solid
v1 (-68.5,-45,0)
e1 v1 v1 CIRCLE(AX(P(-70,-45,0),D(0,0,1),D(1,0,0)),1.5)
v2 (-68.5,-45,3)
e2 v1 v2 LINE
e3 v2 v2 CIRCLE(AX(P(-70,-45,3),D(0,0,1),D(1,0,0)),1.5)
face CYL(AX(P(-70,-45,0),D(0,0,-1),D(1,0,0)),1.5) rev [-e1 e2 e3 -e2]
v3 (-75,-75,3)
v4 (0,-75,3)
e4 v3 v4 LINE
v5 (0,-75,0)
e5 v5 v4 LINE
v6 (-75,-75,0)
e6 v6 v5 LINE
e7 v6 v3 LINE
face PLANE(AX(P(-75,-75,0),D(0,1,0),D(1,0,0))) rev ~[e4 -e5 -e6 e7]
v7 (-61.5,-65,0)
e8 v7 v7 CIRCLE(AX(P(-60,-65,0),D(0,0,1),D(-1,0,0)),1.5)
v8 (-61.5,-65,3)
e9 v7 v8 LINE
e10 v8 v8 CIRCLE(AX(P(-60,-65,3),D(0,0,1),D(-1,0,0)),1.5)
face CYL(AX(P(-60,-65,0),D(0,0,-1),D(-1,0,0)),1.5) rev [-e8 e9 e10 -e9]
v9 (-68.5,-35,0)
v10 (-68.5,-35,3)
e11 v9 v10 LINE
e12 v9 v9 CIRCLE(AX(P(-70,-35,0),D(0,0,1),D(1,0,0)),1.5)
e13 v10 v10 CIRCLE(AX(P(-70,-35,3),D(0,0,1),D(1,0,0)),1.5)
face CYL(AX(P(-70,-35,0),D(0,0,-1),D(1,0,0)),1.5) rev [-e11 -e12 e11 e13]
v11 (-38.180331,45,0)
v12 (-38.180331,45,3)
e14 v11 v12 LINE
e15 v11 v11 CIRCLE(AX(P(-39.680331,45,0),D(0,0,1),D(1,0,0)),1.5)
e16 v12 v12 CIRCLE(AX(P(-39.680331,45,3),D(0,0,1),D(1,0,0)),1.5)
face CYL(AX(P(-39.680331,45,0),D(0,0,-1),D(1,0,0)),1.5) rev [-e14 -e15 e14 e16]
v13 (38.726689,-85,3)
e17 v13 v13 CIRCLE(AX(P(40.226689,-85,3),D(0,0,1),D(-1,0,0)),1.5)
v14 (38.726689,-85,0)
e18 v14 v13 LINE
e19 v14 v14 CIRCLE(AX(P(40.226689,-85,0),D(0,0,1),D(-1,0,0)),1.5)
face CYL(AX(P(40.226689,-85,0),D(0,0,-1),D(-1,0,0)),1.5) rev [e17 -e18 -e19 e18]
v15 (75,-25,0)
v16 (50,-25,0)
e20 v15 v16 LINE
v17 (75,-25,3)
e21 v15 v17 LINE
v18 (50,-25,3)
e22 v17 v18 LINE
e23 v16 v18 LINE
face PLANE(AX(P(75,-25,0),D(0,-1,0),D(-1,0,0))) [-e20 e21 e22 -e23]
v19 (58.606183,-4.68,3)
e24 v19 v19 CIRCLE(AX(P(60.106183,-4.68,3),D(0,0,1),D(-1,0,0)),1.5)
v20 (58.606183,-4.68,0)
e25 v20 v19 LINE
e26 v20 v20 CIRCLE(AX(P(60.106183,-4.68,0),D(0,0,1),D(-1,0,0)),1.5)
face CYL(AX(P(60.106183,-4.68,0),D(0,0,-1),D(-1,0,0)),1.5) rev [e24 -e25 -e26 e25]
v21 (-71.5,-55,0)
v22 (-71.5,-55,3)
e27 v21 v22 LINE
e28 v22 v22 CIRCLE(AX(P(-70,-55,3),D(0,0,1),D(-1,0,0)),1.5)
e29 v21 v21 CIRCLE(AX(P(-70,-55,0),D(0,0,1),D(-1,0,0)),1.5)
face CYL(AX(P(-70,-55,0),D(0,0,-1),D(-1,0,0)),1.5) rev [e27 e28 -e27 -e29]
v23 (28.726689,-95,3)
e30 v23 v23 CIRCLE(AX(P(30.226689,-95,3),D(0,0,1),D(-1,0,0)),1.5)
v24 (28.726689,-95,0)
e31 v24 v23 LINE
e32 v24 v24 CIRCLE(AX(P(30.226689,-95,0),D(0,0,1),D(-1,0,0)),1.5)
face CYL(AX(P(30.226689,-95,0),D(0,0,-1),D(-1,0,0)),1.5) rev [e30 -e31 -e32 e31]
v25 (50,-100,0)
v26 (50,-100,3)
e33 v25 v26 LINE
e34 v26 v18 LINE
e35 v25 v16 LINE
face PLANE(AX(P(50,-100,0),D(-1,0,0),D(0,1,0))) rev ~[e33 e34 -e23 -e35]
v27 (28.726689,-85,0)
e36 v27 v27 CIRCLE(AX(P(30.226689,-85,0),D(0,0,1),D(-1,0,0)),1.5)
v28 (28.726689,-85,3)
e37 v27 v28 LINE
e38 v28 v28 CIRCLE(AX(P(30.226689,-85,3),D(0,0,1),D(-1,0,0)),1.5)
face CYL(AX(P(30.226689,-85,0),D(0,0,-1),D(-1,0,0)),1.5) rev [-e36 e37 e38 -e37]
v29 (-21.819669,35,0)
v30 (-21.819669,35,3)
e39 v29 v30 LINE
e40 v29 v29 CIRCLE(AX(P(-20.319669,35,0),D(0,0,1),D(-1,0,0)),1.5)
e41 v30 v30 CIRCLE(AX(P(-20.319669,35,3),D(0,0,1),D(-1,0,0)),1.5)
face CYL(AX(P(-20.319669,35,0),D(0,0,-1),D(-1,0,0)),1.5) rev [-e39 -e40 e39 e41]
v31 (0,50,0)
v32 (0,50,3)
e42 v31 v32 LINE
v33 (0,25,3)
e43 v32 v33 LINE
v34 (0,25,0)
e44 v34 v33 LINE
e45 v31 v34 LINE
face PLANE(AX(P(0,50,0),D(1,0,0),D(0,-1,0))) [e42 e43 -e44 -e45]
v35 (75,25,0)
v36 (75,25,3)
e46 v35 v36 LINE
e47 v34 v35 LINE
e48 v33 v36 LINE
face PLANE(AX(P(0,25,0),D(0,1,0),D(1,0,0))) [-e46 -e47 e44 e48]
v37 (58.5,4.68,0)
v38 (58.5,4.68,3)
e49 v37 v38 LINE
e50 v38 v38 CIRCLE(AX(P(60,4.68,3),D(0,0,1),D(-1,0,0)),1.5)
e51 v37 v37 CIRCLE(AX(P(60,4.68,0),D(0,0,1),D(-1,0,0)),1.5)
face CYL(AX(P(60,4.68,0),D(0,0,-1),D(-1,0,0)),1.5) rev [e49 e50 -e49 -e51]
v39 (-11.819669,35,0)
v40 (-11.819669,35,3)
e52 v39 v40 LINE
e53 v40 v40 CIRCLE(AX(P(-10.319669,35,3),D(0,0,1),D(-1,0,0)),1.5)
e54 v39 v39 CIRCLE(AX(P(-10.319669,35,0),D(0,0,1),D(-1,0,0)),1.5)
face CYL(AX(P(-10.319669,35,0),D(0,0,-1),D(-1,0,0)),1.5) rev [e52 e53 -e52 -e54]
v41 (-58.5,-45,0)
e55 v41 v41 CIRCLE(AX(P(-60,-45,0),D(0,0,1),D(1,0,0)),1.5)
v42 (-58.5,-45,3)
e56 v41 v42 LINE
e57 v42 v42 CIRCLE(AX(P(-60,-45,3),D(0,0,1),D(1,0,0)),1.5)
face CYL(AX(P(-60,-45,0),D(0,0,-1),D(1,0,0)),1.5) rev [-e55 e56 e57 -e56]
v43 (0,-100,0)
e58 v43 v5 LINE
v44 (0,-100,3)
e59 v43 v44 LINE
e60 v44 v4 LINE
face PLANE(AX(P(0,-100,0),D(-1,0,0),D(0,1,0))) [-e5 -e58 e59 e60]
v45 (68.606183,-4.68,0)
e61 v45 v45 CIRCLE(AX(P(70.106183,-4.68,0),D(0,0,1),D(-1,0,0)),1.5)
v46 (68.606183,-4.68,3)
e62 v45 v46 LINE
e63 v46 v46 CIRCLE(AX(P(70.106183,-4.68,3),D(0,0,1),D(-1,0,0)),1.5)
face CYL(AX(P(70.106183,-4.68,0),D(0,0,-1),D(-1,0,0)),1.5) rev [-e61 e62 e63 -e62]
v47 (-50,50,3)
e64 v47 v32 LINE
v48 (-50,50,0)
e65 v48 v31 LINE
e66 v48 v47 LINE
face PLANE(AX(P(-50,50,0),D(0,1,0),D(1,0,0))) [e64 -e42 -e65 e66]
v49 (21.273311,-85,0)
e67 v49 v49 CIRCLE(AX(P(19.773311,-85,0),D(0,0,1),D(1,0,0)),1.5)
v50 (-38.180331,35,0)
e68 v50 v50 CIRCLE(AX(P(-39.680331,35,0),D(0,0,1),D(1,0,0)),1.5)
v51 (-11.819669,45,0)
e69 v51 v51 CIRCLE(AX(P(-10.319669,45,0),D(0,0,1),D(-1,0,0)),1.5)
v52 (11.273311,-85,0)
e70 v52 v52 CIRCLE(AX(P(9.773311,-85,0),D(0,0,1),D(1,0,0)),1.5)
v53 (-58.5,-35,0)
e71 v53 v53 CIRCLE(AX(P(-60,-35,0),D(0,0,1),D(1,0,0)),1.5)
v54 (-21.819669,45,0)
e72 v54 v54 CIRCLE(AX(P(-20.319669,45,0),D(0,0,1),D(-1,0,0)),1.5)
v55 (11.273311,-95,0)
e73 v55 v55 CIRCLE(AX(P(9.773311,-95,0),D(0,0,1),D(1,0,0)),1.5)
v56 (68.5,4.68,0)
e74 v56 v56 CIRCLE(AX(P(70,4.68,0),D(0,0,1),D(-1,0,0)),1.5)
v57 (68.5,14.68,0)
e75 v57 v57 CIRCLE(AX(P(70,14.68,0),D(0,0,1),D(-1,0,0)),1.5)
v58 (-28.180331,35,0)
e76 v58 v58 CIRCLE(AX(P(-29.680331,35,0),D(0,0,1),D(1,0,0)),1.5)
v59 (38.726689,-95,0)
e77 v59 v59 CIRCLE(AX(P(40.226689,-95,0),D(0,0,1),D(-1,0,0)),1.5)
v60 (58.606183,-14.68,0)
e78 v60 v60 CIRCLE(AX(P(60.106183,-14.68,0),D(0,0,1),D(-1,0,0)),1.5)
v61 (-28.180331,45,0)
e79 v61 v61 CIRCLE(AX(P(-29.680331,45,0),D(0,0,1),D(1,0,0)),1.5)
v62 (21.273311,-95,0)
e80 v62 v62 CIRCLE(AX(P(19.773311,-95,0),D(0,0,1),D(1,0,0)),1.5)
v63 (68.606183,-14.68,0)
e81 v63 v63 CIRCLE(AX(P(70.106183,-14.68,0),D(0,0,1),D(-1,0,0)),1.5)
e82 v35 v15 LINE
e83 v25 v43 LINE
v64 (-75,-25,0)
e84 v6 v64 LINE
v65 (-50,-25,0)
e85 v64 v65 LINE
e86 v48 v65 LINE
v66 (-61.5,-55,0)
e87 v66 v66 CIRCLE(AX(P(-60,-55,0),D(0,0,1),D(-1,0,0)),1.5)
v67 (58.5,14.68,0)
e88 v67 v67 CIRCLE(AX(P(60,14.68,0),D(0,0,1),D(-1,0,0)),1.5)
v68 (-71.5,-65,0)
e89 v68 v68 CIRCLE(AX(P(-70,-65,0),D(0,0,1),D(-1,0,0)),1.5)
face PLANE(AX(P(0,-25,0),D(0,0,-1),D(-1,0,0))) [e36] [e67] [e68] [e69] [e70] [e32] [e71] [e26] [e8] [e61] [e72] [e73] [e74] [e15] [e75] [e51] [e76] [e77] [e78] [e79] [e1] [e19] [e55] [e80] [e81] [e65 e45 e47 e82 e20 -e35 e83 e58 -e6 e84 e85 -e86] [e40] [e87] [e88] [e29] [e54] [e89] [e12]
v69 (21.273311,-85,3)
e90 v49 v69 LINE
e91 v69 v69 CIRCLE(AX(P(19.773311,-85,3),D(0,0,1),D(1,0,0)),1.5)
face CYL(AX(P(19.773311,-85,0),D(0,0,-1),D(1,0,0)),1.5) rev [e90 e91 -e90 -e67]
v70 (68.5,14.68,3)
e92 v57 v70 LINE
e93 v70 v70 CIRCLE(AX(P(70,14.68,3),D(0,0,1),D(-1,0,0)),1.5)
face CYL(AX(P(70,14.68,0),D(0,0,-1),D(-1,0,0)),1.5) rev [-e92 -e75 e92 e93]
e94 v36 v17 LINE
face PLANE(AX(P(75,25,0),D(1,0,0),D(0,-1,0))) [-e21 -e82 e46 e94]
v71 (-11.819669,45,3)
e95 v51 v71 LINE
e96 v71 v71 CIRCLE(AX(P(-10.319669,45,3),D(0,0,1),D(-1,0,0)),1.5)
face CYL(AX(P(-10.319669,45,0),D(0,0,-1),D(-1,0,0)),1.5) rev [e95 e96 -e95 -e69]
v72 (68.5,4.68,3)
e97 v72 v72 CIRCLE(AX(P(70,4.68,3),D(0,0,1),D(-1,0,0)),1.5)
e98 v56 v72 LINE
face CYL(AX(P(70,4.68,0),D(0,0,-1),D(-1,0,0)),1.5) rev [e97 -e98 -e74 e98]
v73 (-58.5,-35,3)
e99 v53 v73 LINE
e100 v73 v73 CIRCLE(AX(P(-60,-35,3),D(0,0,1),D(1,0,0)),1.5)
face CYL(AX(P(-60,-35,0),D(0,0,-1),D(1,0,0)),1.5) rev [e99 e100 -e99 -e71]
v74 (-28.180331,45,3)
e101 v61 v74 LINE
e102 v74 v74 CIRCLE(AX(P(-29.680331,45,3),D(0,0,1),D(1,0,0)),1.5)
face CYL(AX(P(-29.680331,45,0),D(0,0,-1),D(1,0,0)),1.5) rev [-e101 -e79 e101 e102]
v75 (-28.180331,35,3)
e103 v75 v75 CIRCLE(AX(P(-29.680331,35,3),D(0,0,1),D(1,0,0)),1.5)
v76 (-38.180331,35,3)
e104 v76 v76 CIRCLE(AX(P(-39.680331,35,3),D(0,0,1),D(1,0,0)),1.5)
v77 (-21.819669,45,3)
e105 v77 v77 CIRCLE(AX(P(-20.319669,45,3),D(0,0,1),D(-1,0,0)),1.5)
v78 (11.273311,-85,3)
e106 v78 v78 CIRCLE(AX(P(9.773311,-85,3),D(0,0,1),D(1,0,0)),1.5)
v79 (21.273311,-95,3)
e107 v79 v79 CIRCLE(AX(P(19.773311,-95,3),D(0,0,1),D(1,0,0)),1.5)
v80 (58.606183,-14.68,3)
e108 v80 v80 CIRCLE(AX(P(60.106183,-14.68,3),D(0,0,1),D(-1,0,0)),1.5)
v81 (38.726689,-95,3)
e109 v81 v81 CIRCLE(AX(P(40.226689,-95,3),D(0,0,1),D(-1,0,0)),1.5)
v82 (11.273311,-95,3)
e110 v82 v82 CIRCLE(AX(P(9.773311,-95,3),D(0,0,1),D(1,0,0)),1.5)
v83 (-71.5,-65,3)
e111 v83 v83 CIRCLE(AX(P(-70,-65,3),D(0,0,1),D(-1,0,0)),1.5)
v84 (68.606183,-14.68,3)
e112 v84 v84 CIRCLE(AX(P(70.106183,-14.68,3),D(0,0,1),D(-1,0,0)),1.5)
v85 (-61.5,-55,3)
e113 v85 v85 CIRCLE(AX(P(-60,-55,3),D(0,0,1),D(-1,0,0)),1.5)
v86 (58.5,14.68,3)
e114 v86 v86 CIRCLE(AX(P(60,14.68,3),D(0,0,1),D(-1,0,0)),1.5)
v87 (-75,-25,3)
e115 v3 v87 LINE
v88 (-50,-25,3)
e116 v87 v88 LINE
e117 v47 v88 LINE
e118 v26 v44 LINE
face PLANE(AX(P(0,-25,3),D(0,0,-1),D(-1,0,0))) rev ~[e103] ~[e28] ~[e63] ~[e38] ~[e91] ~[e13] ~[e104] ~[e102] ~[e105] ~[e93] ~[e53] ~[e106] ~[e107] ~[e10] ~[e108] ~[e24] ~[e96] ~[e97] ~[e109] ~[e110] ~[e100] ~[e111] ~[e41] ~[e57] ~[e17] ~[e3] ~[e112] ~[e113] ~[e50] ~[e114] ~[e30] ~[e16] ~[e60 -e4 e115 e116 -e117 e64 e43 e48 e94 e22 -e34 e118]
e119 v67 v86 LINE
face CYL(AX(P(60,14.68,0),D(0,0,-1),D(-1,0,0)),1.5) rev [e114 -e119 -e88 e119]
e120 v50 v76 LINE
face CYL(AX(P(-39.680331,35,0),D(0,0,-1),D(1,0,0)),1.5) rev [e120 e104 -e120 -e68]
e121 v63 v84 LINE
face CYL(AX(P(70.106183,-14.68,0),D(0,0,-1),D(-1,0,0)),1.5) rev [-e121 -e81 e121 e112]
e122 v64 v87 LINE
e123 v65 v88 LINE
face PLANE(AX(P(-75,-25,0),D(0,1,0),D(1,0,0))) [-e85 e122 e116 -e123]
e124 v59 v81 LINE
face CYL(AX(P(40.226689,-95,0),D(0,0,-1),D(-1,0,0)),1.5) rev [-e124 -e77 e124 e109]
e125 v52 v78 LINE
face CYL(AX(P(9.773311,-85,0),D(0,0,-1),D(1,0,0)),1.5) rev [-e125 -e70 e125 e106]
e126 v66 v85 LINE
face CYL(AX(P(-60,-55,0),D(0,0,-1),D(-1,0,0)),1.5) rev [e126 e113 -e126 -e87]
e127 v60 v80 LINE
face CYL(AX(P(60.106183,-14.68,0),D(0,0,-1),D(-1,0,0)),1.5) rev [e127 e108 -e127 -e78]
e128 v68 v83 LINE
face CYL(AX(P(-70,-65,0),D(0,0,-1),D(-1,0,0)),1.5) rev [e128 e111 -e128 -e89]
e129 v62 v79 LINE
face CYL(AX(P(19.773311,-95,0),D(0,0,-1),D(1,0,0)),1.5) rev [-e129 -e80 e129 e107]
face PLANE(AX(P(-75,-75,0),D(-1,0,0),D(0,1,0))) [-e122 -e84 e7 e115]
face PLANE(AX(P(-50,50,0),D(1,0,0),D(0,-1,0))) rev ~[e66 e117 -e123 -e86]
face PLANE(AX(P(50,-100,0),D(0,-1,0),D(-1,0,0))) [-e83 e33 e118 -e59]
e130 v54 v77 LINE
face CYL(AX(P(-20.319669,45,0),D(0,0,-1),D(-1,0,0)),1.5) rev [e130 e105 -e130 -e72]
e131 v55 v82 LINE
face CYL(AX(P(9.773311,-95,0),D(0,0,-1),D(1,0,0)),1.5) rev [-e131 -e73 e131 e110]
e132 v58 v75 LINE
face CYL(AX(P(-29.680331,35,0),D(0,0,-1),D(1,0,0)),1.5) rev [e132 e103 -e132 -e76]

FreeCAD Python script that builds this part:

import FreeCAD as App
import Part
import Sketcher

V = App.Vector


def add_polygon(sketch, points):
    """Adds a closed chain of lines whose ends are joined by coincident constraints."""
    first, n = sketch.GeometryCount, len(points)
    for a, b in zip(points, points[1:] + points[:1]):
        sketch.addGeometry(Part.LineSegment(App.Vector(*a, 0), App.Vector(*b, 0)), False)
    for i in range(n):
        sketch.addConstraint(Sketcher.Constraint("Coincident", first + i, 2, first + (i + 1) % n, 1))

doc = App.newDocument("Part")
body = doc.addObject("PartDesign::Body", "Body")

sketch1 = doc.addObject("Sketcher::SketchObject", "Sketch")
body.addObject(sketch1)
sketch1.AttachmentSupport = (doc.XY_Plane, [""])
sketch1.MapMode = "FlatFace"
add_polygon(sketch1, [(50, -100), (50, -25), (75, -25), (75, 25), (0, 25), (0, 50), (-50, 50), (-50, -25), (-75, -25), (-75, -75), (0, -75), (0, -100)])
sketch1.addGeometry(Part.Circle(V(40.2, -95, 0), V(0, 0, 1), 1.5), False)
sketch1.addGeometry(Part.Circle(V(40.2, -85, 0), V(0, 0, 1), 1.5), False)
sketch1.addGeometry(Part.Circle(V(30.2, -95, 0), V(0, 0, 1), 1.5), False)
sketch1.addGeometry(Part.Circle(V(19.8, -95, 0), V(0, 0, 1), 1.5), False)
sketch1.addGeometry(Part.Circle(V(30.2, -85, 0), V(0, 0, 1), 1.5), False)
sketch1.addGeometry(Part.Circle(V(19.8, -85, 0), V(0, 0, 1), 1.5), False)
sketch1.addGeometry(Part.Circle(V(9.8, -95, 0), V(0, 0, 1), 1.5), False)
sketch1.addGeometry(Part.Circle(V(9.8, -85, 0), V(0, 0, 1), 1.5), False)
sketch1.addGeometry(Part.Circle(V(-60, -65, 0), V(0, 0, 1), 1.5), False)
sketch1.addGeometry(Part.Circle(V(-70, -65, 0), V(0, 0, 1), 1.5), False)
sketch1.addGeometry(Part.Circle(V(-60, -55, 0), V(0, 0, 1), 1.5), False)
sketch1.addGeometry(Part.Circle(V(-70, -55, 0), V(0, 0, 1), 1.5), False)
sketch1.addGeometry(Part.Circle(V(-60, -45, 0), V(0, 0, 1), 1.5), False)
sketch1.addGeometry(Part.Circle(V(-70, -45, 0), V(0, 0, 1), 1.5), False)
sketch1.addGeometry(Part.Circle(V(-60, -35, 0), V(0, 0, 1), 1.5), False)
sketch1.addGeometry(Part.Circle(V(-70, -35, 0), V(0, 0, 1), 1.5), False)
sketch1.addGeometry(Part.Circle(V(70.1, -14.7, 0), V(0, 0, 1), 1.5), False)
sketch1.addGeometry(Part.Circle(V(60.1, -14.7, 0), V(0, 0, 1), 1.5), False)
sketch1.addGeometry(Part.Circle(V(70.1, -4.7, 0), V(0, 0, 1), 1.5), False)
sketch1.addGeometry(Part.Circle(V(60.1, -4.7, 0), V(0, 0, 1), 1.5), False)
sketch1.addGeometry(Part.Circle(V(70, 4.7, 0), V(0, 0, 1), 1.5), False)
sketch1.addGeometry(Part.Circle(V(60, 4.7, 0), V(0, 0, 1), 1.5), False)
sketch1.addGeometry(Part.Circle(V(70, 14.7, 0), V(0, 0, 1), 1.5), False)
sketch1.addGeometry(Part.Circle(V(60, 14.7, 0), V(0, 0, 1), 1.5), False)
sketch1.addGeometry(Part.Circle(V(-10.3, 35, 0), V(0, 0, 1), 1.5), False)
sketch1.addGeometry(Part.Circle(V(-10.3, 45, 0), V(0, 0, 1), 1.5), False)
sketch1.addGeometry(Part.Circle(V(-20.3, 35, 0), V(0, 0, 1), 1.5), False)
sketch1.addGeometry(Part.Circle(V(-29.7, 35, 0), V(0, 0, 1), 1.5), False)
sketch1.addGeometry(Part.Circle(V(-20.3, 45, 0), V(0, 0, 1), 1.5), False)
sketch1.addGeometry(Part.Circle(V(-29.7, 45, 0), V(0, 0, 1), 1.5), False)
sketch1.addGeometry(Part.Circle(V(-39.7, 35, 0), V(0, 0, 1), 1.5), False)
sketch1.addGeometry(Part.Circle(V(-39.7, 45, 0), V(0, 0, 1), 1.5), False)
sketch1.addConstraint([
    Sketcher.Constraint("Vertical", 0),
    Sketcher.Constraint("Horizontal", 1),
    Sketcher.Constraint("Vertical", 2),
    Sketcher.Constraint("Horizontal", 3),
    Sketcher.Constraint("Vertical", 4),
    Sketcher.Constraint("Horizontal", 5),
    Sketcher.Constraint("Vertical", 6),
    Sketcher.Constraint("Horizontal", 7),
    Sketcher.Constraint("Vertical", 8),
    Sketcher.Constraint("Horizontal", 9),
    Sketcher.Constraint("Vertical", 10),
    Sketcher.Constraint("Horizontal", 11),
    Sketcher.Constraint("Equal", 12, 13),
    Sketcher.Constraint("Equal", 13, 14),
    Sketcher.Constraint("Equal", 14, 15),
    Sketcher.Constraint("Equal", 15, 16),
    Sketcher.Constraint("Equal", 16, 17),
    Sketcher.Constraint("Equal", 17, 18),
    Sketcher.Constraint("Equal", 18, 19),
    Sketcher.Constraint("Equal", 19, 20),
    Sketcher.Constraint("Equal", 20, 21),
    Sketcher.Constraint("Equal", 21, 22),
    Sketcher.Constraint("Equal", 22, 23),
    Sketcher.Constraint("Equal", 23, 24),
    Sketcher.Constraint("Equal", 24, 25),
    Sketcher.Constraint("Equal", 25, 26),
    Sketcher.Constraint("Equal", 26, 27),
    Sketcher.Constraint("Equal", 27, 28),
    Sketcher.Constraint("Equal", 28, 29),
    Sketcher.Constraint("Equal", 29, 30),
    Sketcher.Constraint("Equal", 30, 31),
    Sketcher.Constraint("Equal", 31, 32),
    Sketcher.Constraint("Equal", 32, 33),
    Sketcher.Constraint("Equal", 33, 34),
    Sketcher.Constraint("Equal", 34, 35),
    Sketcher.Constraint("Equal", 35, 36),
    Sketcher.Constraint("Equal", 36, 37),
    Sketcher.Constraint("Equal", 37, 38),
    Sketcher.Constraint("Equal", 38, 39),
    Sketcher.Constraint("Equal", 39, 40),
    Sketcher.Constraint("Equal", 40, 41),
    Sketcher.Constraint("Equal", 41, 42),
    Sketcher.Constraint("Equal", 42, 43),
    Sketcher.Constraint("Symmetric", 2, 2, 7, 2, -1, 1),
    Sketcher.Constraint("Symmetric", 0, 2, 6, 2, -2),
    Sketcher.Constraint("PointOnObject", 3, 2, -2),
    Sketcher.Constraint("PointOnObject", 9, 2, -2),
    Sketcher.Constraint("Horizontal", 12, 3, 14, 3),
    Sketcher.Constraint("Horizontal", 14, 3, 15, 3),
    Sketcher.Constraint("Horizontal", 13, 3, 16, 3),
    Sketcher.Constraint("Horizontal", 16, 3, 17, 3),
    Sketcher.Constraint("Horizontal", 15, 3, 18, 3),
    Sketcher.Constraint("Horizontal", 17, 3, 19, 3),
    Sketcher.Constraint("Horizontal", 20, 3, 21, 3),
    Sketcher.Constraint("Horizontal", 22, 3, 23, 3),
    Sketcher.Constraint("Horizontal", 24, 3, 25, 3),
    Sketcher.Constraint("Horizontal", 26, 3, 27, 3),
    Sketcher.Constraint("Horizontal", 28, 3, 29, 3),
    Sketcher.Constraint("Horizontal", 30, 3, 31, 3),
    Sketcher.Constraint("Horizontal", 32, 3, 33, 3),
    Sketcher.Constraint("Horizontal", 34, 3, 35, 3),
    Sketcher.Constraint("Horizontal", 36, 3, 38, 3),
    Sketcher.Constraint("Horizontal", 38, 3, 39, 3),
    Sketcher.Constraint("Horizontal", 37, 3, 40, 3),
    Sketcher.Constraint("Horizontal", 40, 3, 41, 3),
    Sketcher.Constraint("Horizontal", 39, 3, 42, 3),
    Sketcher.Constraint("Horizontal", 41, 3, 43, 3),
    Sketcher.Constraint("Vertical", 12, 3, 13, 3),
    Sketcher.Constraint("Vertical", 14, 3, 16, 3),
    Sketcher.Constraint("Vertical", 15, 3, 17, 3),
    Sketcher.Constraint("Vertical", 18, 3, 19, 3),
    Sketcher.Constraint("Vertical", 20, 3, 22, 3),
    Sketcher.Constraint("Vertical", 21, 3, 23, 3),
    Sketcher.Constraint("Vertical", 22, 3, 24, 3),
    Sketcher.Constraint("Vertical", 23, 3, 25, 3),
    Sketcher.Constraint("Vertical", 24, 3, 26, 3),
    Sketcher.Constraint("Vertical", 25, 3, 27, 3),
    Sketcher.Constraint("Vertical", 28, 3, 30, 3),
    Sketcher.Constraint("Vertical", 29, 3, 31, 3),
    Sketcher.Constraint("Vertical", 32, 3, 34, 3),
    Sketcher.Constraint("Vertical", 33, 3, 35, 3),
    Sketcher.Constraint("Vertical", 36, 3, 37, 3),
    Sketcher.Constraint("Vertical", 38, 3, 40, 3),
    Sketcher.Constraint("Vertical", 39, 3, 41, 3),
    Sketcher.Constraint("Vertical", 42, 3, 43, 3),
    Sketcher.Constraint("Equal", 9, 0),
    Sketcher.Constraint("Equal", 11, 2),
    Sketcher.Constraint("Equal", 7, 4),
    Sketcher.Constraint("Equal", 2, 8),
    Sketcher.Constraint("Diameter", 12, 3.0),
    Sketcher.Constraint("DistanceX", 1, 1, 1, 2, 25.0),
    Sketcher.Constraint("DistanceX", 3, 2, 3, 1, 75.0),
    Sketcher.Constraint("DistanceY", 12, 3, -1, 1, 95.0),
    Sketcher.Constraint("DistanceY", 13, 3, -1, 1, 85.0),
    Sketcher.Constraint("DistanceX", 20, 3, -1, 1, 60.0),
    Sketcher.Constraint("DistanceY", 20, 3, -1, 1, 65.0),
    Sketcher.Constraint("DistanceX", 21, 3, -1, 1, 70.0),
    Sketcher.Constraint("DistanceY", 22, 3, -1, 1, 55.0),
    Sketcher.Constraint("DistanceY", 24, 3, -1, 1, 45.0),
    Sketcher.Constraint("DistanceY", 26, 3, -1, 1, 35.0),
    Sketcher.Constraint("DistanceX", -1, 1, 32, 3, 70.0),
    Sketcher.Constraint("DistanceX", -1, 1, 33, 3, 60.0),
    Sketcher.Constraint("DistanceY", -1, 1, 36, 3, 35.0),
    Sketcher.Constraint("DistanceY", -1, 1, 37, 3, 45.0),
    Sketcher.Constraint("DistanceX", 14, 3, 12, 3, 10.0),
    Sketcher.Constraint("DistanceX", 18, 3, 15, 3, 10.0),
    Sketcher.Constraint("DistanceX", 29, 3, 28, 3, 10.0),
    Sketcher.Constraint("DistanceY", 28, 3, 30, 3, 10.0),
    Sketcher.Constraint("DistanceY", 32, 3, 34, 3, 10.0),
    Sketcher.Constraint("DistanceX", 38, 3, 36, 3, 10.0),
    Sketcher.Constraint("DistanceX", 42, 3, 39, 3, 10.0),
    Sketcher.Constraint("DistanceY", 28, 3, -1, 1, 14.68),
    Sketcher.Constraint("DistanceY", -1, 1, 32, 3, 4.68),
    Sketcher.Constraint("DistanceX", -1, 1, 12, 3, 40.226689),
    Sketcher.Constraint("DistanceX", -1, 1, 15, 3, 19.773311),
    Sketcher.Constraint("DistanceX", 36, 3, -1, 1, 10.319669),
    Sketcher.Constraint("DistanceX", 39, 3, -1, 1, 29.680331),
    Sketcher.Constraint("DistanceX", -1, 1, 28, 3, 70.106183),
])
pad1 = doc.addObject("PartDesign::Pad", "Pad")
body.addObject(pad1)
pad1.Profile = sketch1
pad1.Length = 3

doc.recompute()
